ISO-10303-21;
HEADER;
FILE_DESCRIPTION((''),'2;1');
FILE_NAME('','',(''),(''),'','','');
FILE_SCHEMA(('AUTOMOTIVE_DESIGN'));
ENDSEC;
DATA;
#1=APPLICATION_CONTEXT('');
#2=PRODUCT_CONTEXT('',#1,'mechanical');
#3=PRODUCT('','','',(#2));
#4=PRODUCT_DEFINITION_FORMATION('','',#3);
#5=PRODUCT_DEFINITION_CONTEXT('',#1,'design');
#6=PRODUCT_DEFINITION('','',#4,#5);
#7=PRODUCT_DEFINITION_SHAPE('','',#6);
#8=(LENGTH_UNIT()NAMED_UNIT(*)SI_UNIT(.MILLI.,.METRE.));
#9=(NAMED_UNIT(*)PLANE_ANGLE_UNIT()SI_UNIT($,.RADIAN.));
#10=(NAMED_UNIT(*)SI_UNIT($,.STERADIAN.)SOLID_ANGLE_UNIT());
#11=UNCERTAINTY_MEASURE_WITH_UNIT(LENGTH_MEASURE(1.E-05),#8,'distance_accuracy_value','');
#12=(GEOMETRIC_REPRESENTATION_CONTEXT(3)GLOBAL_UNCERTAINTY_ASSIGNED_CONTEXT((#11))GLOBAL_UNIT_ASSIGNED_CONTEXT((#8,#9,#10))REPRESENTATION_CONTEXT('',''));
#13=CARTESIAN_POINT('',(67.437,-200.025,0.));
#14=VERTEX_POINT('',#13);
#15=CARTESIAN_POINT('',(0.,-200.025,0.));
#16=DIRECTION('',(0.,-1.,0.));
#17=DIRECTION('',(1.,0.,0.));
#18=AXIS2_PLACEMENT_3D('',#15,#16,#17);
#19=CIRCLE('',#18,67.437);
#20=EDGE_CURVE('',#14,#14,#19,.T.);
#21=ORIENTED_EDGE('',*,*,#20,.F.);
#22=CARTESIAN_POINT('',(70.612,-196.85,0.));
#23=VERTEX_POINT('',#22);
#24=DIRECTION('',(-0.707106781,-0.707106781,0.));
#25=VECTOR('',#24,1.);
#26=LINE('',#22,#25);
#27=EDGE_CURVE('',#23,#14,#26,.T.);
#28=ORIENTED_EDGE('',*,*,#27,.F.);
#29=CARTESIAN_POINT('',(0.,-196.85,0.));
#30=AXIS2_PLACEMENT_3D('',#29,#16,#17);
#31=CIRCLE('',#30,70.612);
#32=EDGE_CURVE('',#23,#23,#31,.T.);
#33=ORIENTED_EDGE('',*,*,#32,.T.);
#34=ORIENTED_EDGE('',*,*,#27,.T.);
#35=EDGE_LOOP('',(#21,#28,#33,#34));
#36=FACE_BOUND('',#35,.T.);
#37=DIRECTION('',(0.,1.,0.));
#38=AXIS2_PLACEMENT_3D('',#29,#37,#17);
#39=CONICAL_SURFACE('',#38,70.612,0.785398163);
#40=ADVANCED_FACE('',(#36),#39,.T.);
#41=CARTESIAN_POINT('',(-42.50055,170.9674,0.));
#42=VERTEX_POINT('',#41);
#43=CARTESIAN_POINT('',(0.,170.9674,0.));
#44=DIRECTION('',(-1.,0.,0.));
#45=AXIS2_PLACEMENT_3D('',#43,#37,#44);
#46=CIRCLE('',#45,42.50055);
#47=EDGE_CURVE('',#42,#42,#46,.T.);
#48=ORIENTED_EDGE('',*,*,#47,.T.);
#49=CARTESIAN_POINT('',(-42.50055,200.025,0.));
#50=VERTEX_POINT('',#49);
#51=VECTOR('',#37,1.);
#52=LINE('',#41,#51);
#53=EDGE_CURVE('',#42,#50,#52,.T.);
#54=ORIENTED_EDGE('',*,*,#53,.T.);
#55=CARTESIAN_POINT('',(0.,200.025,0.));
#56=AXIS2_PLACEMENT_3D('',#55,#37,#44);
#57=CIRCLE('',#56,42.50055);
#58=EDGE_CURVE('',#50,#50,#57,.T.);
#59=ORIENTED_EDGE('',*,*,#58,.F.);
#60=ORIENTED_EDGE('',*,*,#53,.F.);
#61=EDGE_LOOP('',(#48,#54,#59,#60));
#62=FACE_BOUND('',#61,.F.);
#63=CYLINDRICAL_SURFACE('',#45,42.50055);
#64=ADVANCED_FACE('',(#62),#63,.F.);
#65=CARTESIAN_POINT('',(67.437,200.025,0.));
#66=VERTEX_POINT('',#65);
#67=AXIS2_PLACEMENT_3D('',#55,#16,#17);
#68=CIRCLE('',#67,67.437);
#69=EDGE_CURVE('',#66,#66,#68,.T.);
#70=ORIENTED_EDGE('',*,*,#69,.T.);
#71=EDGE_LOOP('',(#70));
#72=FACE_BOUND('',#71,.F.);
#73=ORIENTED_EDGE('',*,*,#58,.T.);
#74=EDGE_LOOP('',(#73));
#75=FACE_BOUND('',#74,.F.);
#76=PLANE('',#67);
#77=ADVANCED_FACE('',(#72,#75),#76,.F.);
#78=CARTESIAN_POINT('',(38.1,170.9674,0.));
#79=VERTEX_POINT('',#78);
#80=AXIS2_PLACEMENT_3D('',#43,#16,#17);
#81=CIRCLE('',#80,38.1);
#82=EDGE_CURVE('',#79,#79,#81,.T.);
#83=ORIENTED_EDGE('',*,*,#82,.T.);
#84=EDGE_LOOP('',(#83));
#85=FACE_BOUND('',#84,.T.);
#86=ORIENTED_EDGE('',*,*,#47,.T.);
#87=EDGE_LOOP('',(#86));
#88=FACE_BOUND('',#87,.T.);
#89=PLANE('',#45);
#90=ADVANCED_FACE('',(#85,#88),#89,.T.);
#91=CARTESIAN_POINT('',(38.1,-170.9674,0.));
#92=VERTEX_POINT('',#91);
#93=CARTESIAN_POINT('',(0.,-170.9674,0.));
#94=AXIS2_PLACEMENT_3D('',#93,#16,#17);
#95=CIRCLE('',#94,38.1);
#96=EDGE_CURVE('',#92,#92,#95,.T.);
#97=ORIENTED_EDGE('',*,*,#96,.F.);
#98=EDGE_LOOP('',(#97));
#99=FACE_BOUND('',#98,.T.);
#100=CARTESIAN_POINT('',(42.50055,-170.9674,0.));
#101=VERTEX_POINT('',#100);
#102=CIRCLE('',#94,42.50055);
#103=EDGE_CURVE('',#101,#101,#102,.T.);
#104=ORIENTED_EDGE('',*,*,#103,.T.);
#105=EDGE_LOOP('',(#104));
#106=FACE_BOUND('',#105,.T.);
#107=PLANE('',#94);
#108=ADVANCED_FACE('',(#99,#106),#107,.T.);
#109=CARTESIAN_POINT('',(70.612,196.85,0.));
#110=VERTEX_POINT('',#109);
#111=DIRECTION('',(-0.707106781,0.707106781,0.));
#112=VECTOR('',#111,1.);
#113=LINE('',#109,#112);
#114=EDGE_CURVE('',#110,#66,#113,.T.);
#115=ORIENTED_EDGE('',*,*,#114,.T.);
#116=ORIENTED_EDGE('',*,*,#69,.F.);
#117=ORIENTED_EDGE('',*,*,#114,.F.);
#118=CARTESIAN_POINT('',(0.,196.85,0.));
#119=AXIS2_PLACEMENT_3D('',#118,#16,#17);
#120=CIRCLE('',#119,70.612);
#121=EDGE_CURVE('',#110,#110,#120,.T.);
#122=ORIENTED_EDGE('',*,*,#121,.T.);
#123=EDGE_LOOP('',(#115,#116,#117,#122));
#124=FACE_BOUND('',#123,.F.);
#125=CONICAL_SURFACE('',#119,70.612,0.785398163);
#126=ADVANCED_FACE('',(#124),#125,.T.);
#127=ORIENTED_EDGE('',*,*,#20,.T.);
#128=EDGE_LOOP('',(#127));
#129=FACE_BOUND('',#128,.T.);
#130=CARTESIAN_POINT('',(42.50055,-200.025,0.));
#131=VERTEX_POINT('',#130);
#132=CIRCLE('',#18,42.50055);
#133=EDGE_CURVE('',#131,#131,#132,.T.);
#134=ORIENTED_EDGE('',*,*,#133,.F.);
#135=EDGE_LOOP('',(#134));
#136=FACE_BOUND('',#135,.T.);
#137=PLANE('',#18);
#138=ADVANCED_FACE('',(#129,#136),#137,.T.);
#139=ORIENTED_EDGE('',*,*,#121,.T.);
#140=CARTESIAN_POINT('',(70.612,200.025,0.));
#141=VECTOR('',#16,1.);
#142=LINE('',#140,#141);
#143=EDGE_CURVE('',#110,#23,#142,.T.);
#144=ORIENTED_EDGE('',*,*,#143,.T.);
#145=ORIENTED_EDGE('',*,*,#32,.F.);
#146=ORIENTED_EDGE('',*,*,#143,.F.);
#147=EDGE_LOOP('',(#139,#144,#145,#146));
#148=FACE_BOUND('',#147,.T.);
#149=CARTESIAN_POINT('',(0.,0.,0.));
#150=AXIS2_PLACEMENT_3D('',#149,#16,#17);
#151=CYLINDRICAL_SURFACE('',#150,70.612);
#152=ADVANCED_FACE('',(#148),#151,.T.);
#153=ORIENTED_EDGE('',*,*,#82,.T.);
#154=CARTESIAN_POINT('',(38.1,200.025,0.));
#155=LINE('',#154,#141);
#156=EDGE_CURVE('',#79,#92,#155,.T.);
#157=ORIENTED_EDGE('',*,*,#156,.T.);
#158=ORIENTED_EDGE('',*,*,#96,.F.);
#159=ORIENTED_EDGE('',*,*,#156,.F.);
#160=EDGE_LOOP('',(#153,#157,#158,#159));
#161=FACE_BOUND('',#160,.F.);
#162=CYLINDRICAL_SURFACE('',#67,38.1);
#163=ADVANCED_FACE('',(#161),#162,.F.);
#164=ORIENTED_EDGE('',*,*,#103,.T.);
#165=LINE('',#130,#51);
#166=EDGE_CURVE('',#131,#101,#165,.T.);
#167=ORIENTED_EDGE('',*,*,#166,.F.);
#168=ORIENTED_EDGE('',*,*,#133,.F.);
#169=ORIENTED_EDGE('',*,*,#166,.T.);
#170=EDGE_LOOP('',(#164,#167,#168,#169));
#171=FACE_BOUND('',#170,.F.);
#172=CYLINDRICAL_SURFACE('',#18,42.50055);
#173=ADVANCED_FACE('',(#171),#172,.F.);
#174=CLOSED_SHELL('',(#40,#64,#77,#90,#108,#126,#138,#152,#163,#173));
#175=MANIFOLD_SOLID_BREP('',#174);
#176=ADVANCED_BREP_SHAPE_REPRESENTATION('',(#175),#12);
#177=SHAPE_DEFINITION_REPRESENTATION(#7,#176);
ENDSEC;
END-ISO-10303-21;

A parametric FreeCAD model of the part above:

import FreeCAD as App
import Part
import Sketcher
Q = App.Units.Quantity


def edges_at(feature, points):
    """Names of the edges that pass closest to the given points."""
    edges = feature.Shape.Edges
    near = lambda p: min(range(len(edges)), key=lambda i: edges[i].distToShape(Part.Vertex(*p))[0])
    return sorted({f"Edge{near(p) + 1}" for p in points})

doc = App.newDocument("Part")
params = doc.addObject("Spreadsheet::Sheet", "Params")
for row, (alias, value) in enumerate([
    ("sketch1_diameter", "5.56 in"),
    ("pad1_length", "15.75 in"),
    ("chamfer_size", "0.125 in"),
    ("sketch2_diameter", "3 in"),
    ("hole_diameter", "3 in"),
    ("hole_cbore_diameter", "3.3465 in"),
    ("hole_cbore_depth", "1.144 in"),
    ("pocket1_length", "1.144 in"),
], start=1):
    params.set(f"A{row}", alias)
    params.set(f"B{row}", "=" + value)
    params.setAlias(f"B{row}", alias)

body = doc.addObject("PartDesign::Body", "Body")

# Sketch on XZ plane
sketch1 = doc.addObject("Sketcher::SketchObject", "Sketch")
body.addObject(sketch1)
sketch1.AttachmentSupport = (doc.XZ_Plane, [""])
sketch1.MapMode = "FlatFace"
sketch1.addGeometry(Part.Circle(App.Vector(0, 0, 0), App.Vector(0, 0, 1), 71), False)
sketch1.addConstraint([
    Sketcher.Constraint("Coincident", 0, 3, -1, 1),
    Sketcher.Constraint("Diameter", 0, Q("5.56 in")),
])
sketch1.setExpression("Constraints[1]", "Params.sketch1_diameter")
pad1 = doc.addObject("PartDesign::Pad", "Pad")
body.addObject(pad1)
pad1.Profile = sketch1
pad1.setExpression("Length", "Params.pad1_length")
pad1.Midplane = True
doc.recompute()

chamfer = doc.addObject("PartDesign::Chamfer", "Chamfer")
body.addObject(chamfer)
chamfer.Base = (pad1, edges_at(pad1, [(-70.612, -200.025, 0), (-70.612, 200.025, 0)]))
chamfer.setExpression("Size", "Params.chamfer_size")

# Sketch on XZ plane
sketch2 = doc.addObject("Sketcher::SketchObject", "Sketch001")
body.addObject(sketch2)
sketch2.AttachmentSupport = (doc.XZ_Plane, [""])
sketch2.MapMode = "FlatFace"
sketch2.AttachmentOffset = App.Placement(App.Vector(0, 0, -7.875 * 25.4), App.Rotation())
sketch2.addGeometry(Part.Circle(App.Vector(0, 0, 0), App.Vector(0, 0, 1), 38), False)
sketch2.addConstraint([
    Sketcher.Constraint("Coincident", 0, 3, -1, 1),
    Sketcher.Constraint("Diameter", 0, Q("3 in")),
])
sketch2.setExpression("Constraints[1]", "Params.sketch2_diameter")
doc.recompute()
hole = doc.addObject("PartDesign::Hole", "Hole")
body.addObject(hole)
hole.Profile = sketch2
hole.ThreadType = "None"
hole.setExpression("Diameter", "Params.hole_diameter")
hole.DepthType = "ThroughAll"
hole.HoleCutType = "Counterbore"
hole.setExpression("HoleCutDiameter", "Params.hole_cbore_diameter")
hole.setExpression("HoleCutDepth", "Params.hole_cbore_depth")
hole.Reversed = True

# Sketch on XZ plane
sketch3 = doc.addObject("Sketcher::SketchObject", "Sketch002")
body.addObject(sketch3)
sketch3.AttachmentSupport = (doc.XZ_Plane, [""])
sketch3.MapMode = "FlatFace"
sketch3.AttachmentOffset = App.Placement(App.Vector(0, 0, 7.875 * 25.4), App.Rotation())
sketch3.addGeometry(Part.Circle(App.Vector(0, 0, 0), App.Vector(0, 0, 1), 43), False)
sketch3.addConstraint([
    Sketcher.Constraint("Coincident", 0, 3, -1, 1),
    Sketcher.Constraint("Diameter", 0, Q("3.3465 in")),
])
pocket1 = doc.addObject("PartDesign::Pocket", "Pocket")
body.addObject(pocket1)
pocket1.Profile = sketch3
pocket1.setExpression("Length", "Params.pocket1_length")

doc.recompute()
